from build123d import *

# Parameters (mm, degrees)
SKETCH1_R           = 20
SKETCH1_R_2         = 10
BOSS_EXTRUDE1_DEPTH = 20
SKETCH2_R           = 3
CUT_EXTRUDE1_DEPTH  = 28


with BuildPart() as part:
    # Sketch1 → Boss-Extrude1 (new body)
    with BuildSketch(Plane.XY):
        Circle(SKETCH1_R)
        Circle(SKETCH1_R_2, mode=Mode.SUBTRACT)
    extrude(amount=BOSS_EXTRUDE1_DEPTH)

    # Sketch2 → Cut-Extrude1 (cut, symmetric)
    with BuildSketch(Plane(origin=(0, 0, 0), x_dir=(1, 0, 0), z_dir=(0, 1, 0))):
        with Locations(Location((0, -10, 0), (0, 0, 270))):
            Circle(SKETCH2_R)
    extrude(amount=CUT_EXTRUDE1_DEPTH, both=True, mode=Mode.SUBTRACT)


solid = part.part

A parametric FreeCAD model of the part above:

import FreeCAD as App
import Part
import Sketcher

V = App.Vector

doc = App.newDocument("Part")
body = doc.addObject("PartDesign::Body", "Body")

# Sketch on XY plane
sketch1 = body.newObject("Sketcher::SketchObject", "Sketch")
sketch1.AttachmentSupport = (doc.getObject("XY_Plane"), [""])
sketch1.MapMode = "FlatFace"
sketch1.addGeometry([
    Part.Circle(V(0, 0, 0), V(0, 0, 1), 20),
    Part.Circle(V(0, 0, 0), V(0, 0, 1), 10),
], False)
sketch1.addConstraint([
    Sketcher.Constraint("Coincident", 0, 3, -1, 1),
    Sketcher.Constraint("Coincident", 1, 3, -1, 1),
    Sketcher.Constraint("Diameter", 0, 40.0),
    Sketcher.Constraint("Diameter", 1, 20.0),
])
pad1 = body.newObject("PartDesign::Pad", "Pad")
pad1.Profile = sketch1
pad1.Length = 20

# Sketch on XZ plane
sketch2 = body.newObject("Sketcher::SketchObject", "Sketch001")
sketch2.AttachmentSupport = (doc.getObject("XZ_Plane"), [""])
sketch2.MapMode = "FlatFace"
sketch2.addGeometry(Part.Circle(V(0, 10, 0), V(0, 0, 1), 3), False)
sketch2.addConstraint([
    Sketcher.Constraint("PointOnObject", 0, 3, -2),
    Sketcher.Constraint("Diameter", 0, 6.0),
    Sketcher.Constraint("DistanceY", -1, 1, 0, 3, 10.0),
])
pocket1 = body.newObject("PartDesign::Pocket", "Pocket")
pocket1.Profile = sketch2
pocket1.Length = 56
pocket1.Midplane = True

doc.recompute()
